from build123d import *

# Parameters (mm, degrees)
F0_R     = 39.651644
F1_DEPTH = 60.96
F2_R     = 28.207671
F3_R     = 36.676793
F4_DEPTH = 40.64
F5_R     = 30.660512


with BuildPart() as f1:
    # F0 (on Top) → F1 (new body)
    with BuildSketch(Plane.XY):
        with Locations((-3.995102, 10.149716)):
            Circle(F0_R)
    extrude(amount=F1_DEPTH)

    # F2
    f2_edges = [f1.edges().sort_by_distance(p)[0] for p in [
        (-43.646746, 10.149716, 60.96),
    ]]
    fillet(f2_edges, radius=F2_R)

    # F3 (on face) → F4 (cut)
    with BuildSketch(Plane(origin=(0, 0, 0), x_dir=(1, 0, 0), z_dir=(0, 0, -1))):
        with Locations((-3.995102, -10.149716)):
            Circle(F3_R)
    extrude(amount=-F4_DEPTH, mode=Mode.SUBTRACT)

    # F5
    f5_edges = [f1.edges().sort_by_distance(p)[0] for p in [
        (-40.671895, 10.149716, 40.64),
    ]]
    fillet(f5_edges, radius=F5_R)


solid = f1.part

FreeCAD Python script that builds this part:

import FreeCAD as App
import Part
import Sketcher


def edges_at(feature, points):
    """Names of the edges that pass closest to the given points."""
    edges = feature.Shape.Edges
    near = lambda p: min(range(len(edges)), key=lambda i: edges[i].distToShape(Part.Vertex(*p))[0])
    return sorted({f"Edge{near(p) + 1}" for p in points})

doc = App.newDocument("Part")
params = doc.addObject("Spreadsheet::Sheet", "Params")
for row, (alias, value) in enumerate([
    ("pad1_length", "2.4 in"),
    ("fillet_radius", "28.207671 mm"),
    ("pocket1_length", "1.6 in"),
    ("fillet2_radius", "30.660512 mm"),
], start=1):
    params.set(f"A{row}", alias)
    params.set(f"B{row}", "=" + value)
    params.setAlias(f"B{row}", alias)

body = doc.addObject("PartDesign::Body", "Body")

# Sketch on XY plane
sketch1 = doc.addObject("Sketcher::SketchObject", "Sketch")
body.addObject(sketch1)
sketch1.AttachmentSupport = (doc.XY_Plane, [""])
sketch1.MapMode = "FlatFace"
sketch1.addGeometry(Part.Circle(App.Vector(-4, 10, 0), App.Vector(0, 0, 1), 40), False)
sketch1.addConstraint(Sketcher.Constraint("Diameter", 0, 79.303288))
sketch1.addConstraint(Sketcher.Constraint("DistanceX", 0, 3, -1, 1, 3.995102))
sketch1.addConstraint(Sketcher.Constraint("DistanceY", -1, 1, 0, 3, 10.149716))
pad1 = doc.addObject("PartDesign::Pad", "Pad")
body.addObject(pad1)
pad1.Profile = sketch1
pad1.setExpression("Length", "Params.pad1_length")
doc.recompute()

fillet = doc.addObject("PartDesign::Fillet", "Fillet")
body.addObject(fillet)
fillet.Base = (pad1, edges_at(pad1, [(-43.647, 10.15, 60.96)]))
fillet.setExpression("Radius", "Params.fillet_radius")

# Sketch on XY plane
sketch2 = doc.addObject("Sketcher::SketchObject", "Sketch001")
body.addObject(sketch2)
sketch2.AttachmentSupport = (doc.XY_Plane, [""])
sketch2.MapMode = "FlatFace"
sketch2.addGeometry(Part.Circle(App.Vector(-4, 10, 0), App.Vector(0, 0, 1), 37), False)
sketch2.addConstraint(Sketcher.Constraint("Diameter", 0, 73.353586))
sketch2.addConstraint(Sketcher.Constraint("DistanceX", 0, 3, -1, 1, 3.995102))
sketch2.addConstraint(Sketcher.Constraint("DistanceY", -1, 1, 0, 3, 10.149716))
pocket1 = doc.addObject("PartDesign::Pocket", "Pocket")
body.addObject(pocket1)
pocket1.Profile = sketch2
pocket1.setExpression("Length", "Params.pocket1_length")
pocket1.Reversed = True
doc.recompute()

fillet2 = doc.addObject("PartDesign::Fillet", "Fillet001")
body.addObject(fillet2)
fillet2.Base = (pocket1, edges_at(pocket1, [(-40.672, 10.15, 40.64)]))
fillet2.setExpression("Radius", "Params.fillet2_radius")

doc.recompute()
